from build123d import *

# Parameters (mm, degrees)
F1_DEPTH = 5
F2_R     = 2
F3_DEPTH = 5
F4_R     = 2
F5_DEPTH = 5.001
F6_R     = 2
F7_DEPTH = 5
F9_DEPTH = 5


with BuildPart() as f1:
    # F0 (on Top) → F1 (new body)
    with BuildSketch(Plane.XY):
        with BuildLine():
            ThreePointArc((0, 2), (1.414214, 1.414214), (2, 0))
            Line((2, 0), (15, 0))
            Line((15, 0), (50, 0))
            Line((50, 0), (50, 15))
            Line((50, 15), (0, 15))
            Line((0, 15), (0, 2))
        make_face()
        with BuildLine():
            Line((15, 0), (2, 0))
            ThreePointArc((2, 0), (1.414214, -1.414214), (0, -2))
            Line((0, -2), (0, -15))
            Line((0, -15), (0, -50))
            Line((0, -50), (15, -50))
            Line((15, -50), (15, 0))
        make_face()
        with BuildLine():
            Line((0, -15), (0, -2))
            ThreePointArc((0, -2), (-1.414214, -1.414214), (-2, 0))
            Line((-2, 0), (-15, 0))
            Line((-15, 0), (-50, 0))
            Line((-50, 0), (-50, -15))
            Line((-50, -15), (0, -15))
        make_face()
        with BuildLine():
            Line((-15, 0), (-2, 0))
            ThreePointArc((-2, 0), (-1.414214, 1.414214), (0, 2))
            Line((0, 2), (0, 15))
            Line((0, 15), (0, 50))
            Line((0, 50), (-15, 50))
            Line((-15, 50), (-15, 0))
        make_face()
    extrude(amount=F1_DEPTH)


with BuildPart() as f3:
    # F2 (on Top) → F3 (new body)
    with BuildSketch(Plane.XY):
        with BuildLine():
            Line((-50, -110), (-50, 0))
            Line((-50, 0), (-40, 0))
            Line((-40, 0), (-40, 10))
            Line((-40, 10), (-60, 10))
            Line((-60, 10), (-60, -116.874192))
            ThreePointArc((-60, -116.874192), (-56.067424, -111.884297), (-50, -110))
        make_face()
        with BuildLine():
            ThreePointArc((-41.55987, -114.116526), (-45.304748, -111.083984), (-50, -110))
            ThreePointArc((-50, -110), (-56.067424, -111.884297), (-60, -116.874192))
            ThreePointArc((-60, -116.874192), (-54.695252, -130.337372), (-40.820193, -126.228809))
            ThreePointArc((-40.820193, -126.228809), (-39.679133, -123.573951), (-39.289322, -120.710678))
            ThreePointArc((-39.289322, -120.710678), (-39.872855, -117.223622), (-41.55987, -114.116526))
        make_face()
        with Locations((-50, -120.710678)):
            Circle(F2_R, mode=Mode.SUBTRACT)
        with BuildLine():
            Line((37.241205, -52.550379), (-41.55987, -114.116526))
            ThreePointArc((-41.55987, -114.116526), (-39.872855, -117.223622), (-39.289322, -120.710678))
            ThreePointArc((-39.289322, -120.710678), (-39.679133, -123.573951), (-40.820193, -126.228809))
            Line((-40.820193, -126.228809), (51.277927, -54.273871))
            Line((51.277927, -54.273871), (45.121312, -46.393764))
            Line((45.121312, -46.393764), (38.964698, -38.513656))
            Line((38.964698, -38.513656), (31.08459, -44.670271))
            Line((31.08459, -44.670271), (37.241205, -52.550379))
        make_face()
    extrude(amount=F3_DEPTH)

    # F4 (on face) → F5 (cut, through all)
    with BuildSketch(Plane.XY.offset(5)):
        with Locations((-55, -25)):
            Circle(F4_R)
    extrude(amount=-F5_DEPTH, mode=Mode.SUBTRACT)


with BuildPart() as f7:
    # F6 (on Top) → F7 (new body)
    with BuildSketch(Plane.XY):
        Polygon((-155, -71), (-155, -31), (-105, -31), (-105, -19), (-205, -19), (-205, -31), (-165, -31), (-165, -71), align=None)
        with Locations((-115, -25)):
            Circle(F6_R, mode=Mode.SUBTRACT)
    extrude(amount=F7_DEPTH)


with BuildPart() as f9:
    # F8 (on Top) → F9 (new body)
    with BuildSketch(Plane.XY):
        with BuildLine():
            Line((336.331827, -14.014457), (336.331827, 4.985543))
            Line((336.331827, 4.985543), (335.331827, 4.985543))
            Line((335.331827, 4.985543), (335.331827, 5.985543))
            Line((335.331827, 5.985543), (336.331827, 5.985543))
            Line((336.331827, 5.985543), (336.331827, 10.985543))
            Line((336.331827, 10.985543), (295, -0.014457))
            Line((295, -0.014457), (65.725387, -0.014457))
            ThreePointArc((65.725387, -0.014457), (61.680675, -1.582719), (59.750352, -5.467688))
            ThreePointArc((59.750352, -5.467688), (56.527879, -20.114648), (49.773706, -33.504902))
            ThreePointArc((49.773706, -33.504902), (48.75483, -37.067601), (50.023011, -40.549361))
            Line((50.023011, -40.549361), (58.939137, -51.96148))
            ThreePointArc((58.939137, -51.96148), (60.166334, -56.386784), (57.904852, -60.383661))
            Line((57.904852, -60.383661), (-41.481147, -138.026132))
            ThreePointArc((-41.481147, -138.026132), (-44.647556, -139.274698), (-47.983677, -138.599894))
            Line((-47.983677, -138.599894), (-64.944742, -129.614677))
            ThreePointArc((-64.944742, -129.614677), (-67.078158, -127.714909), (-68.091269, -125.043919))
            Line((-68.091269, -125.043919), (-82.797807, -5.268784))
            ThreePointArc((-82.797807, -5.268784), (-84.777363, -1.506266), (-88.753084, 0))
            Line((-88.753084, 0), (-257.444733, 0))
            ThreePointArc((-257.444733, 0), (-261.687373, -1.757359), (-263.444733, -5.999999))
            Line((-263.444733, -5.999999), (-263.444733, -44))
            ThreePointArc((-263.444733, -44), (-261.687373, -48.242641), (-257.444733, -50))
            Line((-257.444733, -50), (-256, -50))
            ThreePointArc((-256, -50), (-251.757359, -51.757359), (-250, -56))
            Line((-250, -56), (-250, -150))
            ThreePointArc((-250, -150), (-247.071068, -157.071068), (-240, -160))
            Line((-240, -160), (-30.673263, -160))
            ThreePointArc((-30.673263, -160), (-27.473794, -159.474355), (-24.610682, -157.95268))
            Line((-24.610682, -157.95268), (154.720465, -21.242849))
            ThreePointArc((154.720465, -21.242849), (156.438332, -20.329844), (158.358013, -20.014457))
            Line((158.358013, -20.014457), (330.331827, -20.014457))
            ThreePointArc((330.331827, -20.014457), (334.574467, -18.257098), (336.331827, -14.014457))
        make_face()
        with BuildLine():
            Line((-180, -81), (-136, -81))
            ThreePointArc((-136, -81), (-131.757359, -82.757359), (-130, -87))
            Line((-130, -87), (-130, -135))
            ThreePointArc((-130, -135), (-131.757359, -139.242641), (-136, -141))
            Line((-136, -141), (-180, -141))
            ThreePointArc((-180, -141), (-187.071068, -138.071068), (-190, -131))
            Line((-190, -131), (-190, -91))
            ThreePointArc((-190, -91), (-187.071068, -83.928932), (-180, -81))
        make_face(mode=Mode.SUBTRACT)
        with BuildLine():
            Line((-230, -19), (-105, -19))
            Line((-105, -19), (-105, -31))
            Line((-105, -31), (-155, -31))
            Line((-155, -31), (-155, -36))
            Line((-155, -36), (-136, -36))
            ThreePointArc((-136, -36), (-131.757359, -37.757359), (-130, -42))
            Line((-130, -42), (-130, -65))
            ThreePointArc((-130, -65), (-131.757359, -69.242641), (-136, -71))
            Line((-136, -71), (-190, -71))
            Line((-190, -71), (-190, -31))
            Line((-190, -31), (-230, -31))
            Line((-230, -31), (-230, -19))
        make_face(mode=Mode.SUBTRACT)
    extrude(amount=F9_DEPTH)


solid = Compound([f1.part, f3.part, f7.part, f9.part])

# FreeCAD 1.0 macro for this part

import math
import FreeCAD as App
import Part
import Sketcher

V = App.Vector
Q = App.Units.Quantity

doc = App.newDocument("Part")
body = doc.addObject("PartDesign::Body", "Body")

sketch1 = body.newObject("Sketcher::SketchObject", "Sketch")
sketch1.AttachmentSupport = (doc.getObject("XY_Plane"), [""])
sketch1.MapMode = "FlatFace"
sketch1.addGeometry([
    Part.LineSegment(V(-15, 0, 0), V(-50, 0, 0)),
    Part.LineSegment(V(-50, 0, 0), V(-50, -15, 0)),
    Part.LineSegment(V(-50, -15, 0), V(0, -15, 0)),
    Part.LineSegment(V(0, -15, 0), V(0, -50, 0)),
    Part.LineSegment(V(0, -50, 0), V(15, -50, 0)),
    Part.LineSegment(V(15, -50, 0), V(15, 0, 0)),
    Part.LineSegment(V(15, 0, 0), V(50, 0, 0)),
    Part.LineSegment(V(50, 0, 0), V(50, 15, 0)),
    Part.LineSegment(V(50, 15, 0), V(0, 15, 0)),
    Part.LineSegment(V(0, 15, 0), V(0, 50, 0)),
    Part.LineSegment(V(0, 50, 0), V(-15, 50, 0)),
    Part.LineSegment(V(-15, 50, 0), V(-15, 0, 0)),
    Part.ArcOfCircle(Part.Circle(V(0.000001, 0.000001, 0), V(0, 0, 1), 1.999999), math.radians(-0.000043), math.radians(90.000043)),
    Part.ArcOfCircle(Part.Circle(V(0.000001, -0.000001, 0), V(0, 0, 1), 1.999999), math.radians(-90.000043), math.radians(0.000043)),
    Part.ArcOfCircle(Part.Circle(V(-0.000001, -0.000001, 0), V(0, 0, 1), 1.999999), math.radians(179.999957), math.radians(270.000043)),
    Part.ArcOfCircle(Part.Circle(V(-0.000001, 0.000001, 0), V(0, 0, 1), 1.999999), math.radians(89.999957), math.radians(180.000043)),
], False)
sketch1.addConstraint([
    Sketcher.Constraint("Coincident", 0, 2, 1, 1),
    Sketcher.Constraint("Coincident", 1, 2, 2, 1),
    Sketcher.Constraint("Coincident", 2, 2, 3, 1),
    Sketcher.Constraint("Coincident", 3, 2, 4, 1),
    Sketcher.Constraint("Coincident", 4, 2, 5, 1),
    Sketcher.Constraint("Coincident", 5, 2, 6, 1),
    Sketcher.Constraint("Coincident", 6, 2, 7, 1),
    Sketcher.Constraint("Coincident", 7, 2, 8, 1),
    Sketcher.Constraint("Coincident", 8, 2, 9, 1),
    Sketcher.Constraint("Coincident", 9, 2, 10, 1),
    Sketcher.Constraint("Coincident", 10, 2, 11, 1),
    Sketcher.Constraint("Coincident", 11, 2, 0, 1),
    Sketcher.Constraint("Tangent", 12, 1, 13, 2),
    Sketcher.Constraint("Tangent", 13, 1, 14, 2),
    Sketcher.Constraint("Tangent", 14, 1, 15, 2),
    Sketcher.Constraint("Tangent", 15, 1, 12, 2),
    Sketcher.Constraint("Horizontal", 0),
    Sketcher.Constraint("Vertical", 1),
    Sketcher.Constraint("Horizontal", 2),
    Sketcher.Constraint("Vertical", 3),
    Sketcher.Constraint("Horizontal", 4),
    Sketcher.Constraint("Vertical", 5),
    Sketcher.Constraint("Horizontal", 6),
    Sketcher.Constraint("Vertical", 7),
    Sketcher.Constraint("Horizontal", 8),
    Sketcher.Constraint("Vertical", 9),
    Sketcher.Constraint("Horizontal", 10),
    Sketcher.Constraint("Vertical", 11),
    Sketcher.Constraint("Coincident", 12, 3, -1, 1),
    Sketcher.Constraint("Equal", 12, 13),
    Sketcher.Constraint("Symmetric", 0, 2, 6, 2, -1, 1),
    Sketcher.Constraint("Symmetric", 2, 2, 8, 2, -1, 1),
    Sketcher.Constraint("Symmetric", 4, 2, 10, 2, -1, 1),
    Sketcher.Constraint("PointOnObject", 0, 2, -1),
    Sketcher.Constraint("PointOnObject", 2, 2, -2),
    Sketcher.Constraint("PointOnObject", 12, 1, -1),
    Sketcher.Constraint("PointOnObject", 13, 1, -2),
    Sketcher.Constraint("PointOnObject", 14, 1, -1),
    Sketcher.Constraint("PointOnObject", 15, 1, -2),
    Sketcher.Constraint("Equal", 10, 1),
    Sketcher.Constraint("Equal", 6, 3),
    Sketcher.Constraint("Radius", 12, 1.999999),
    Sketcher.Constraint("DistanceX", 0, 2, 0, 1, 35.0),
    Sketcher.Constraint("DistanceX", 2, 1, 2, 2, 50.0),
])
pad1 = body.newObject("PartDesign::Pad", "Pad")
pad1.Profile = sketch1
pad1.Length = 5
body2 = doc.addObject("PartDesign::Body", "Body001")

sketch2 = body2.newObject("Sketcher::SketchObject", "Sketch001")
sketch2.AttachmentSupport = (doc.getObject("XY_Plane001"), [""])
sketch2.MapMode = "FlatFace"
sketch2.addGeometry([
    Part.LineSegment(V(-50, -110, 0), V(-50, 0, 0)),
    Part.LineSegment(V(-50, 0, 0), V(-40, 0, 0)),
    Part.LineSegment(V(-40, 0, 0), V(-40, 10, 0)),
    Part.LineSegment(V(-40, 10, 0), V(-60, 10, 0)),
    Part.LineSegment(V(-60, 10, 0), V(-60, -116.874192, 0)),
    Part.ArcOfCircle(Part.Circle(V(-50, -120.710678, 0), V(0, 0, 1), 10.710678), math.radians(159.010758), math.radians(328.989241)),
    Part.LineSegment(V(-40.820193, -126.228809, 0), V(51.277927, -54.273871, 0)),
    Part.LineSegment(V(51.277927, -54.273871, 0), V(45.121312, -46.393764, 0)),
    Part.LineSegment(V(45.121312, -46.393764, 0), V(38.964698, -38.513656, 0)),
    Part.LineSegment(V(38.964698, -38.513656, 0), V(31.08459, -44.670271, 0)),
    Part.LineSegment(V(31.08459, -44.670271, 0), V(37.241205, -52.550379, 0)),
    Part.LineSegment(V(37.241205, -52.550379, 0), V(-41.55987, -114.116526, 0)),
    Part.ArcOfCircle(Part.Circle(V(-50, -120.710678, 0), V(0, 0, 1), 10.710678), math.radians(38.000002), math.radians(90.000003)),
    Part.Circle(V(-50, -120.710678, 0), V(0, 0, 1), 2),
], False)
sketch2.addConstraint([
    Sketcher.Constraint("Coincident", 0, 2, 1, 1),
    Sketcher.Constraint("Coincident", 1, 2, 2, 1),
    Sketcher.Constraint("Coincident", 2, 2, 3, 1),
    Sketcher.Constraint("Coincident", 3, 2, 4, 1),
    Sketcher.Constraint("Coincident", 4, 2, 5, 1),
    Sketcher.Constraint("Coincident", 5, 2, 6, 1),
    Sketcher.Constraint("Coincident", 6, 2, 7, 1),
    Sketcher.Constraint("Coincident", 7, 2, 8, 1),
    Sketcher.Constraint("Coincident", 8, 2, 9, 1),
    Sketcher.Constraint("Coincident", 9, 2, 10, 1),
    Sketcher.Constraint("Coincident", 10, 2, 11, 1),
    Sketcher.Constraint("Coincident", 11, 2, 12, 1),
    Sketcher.Constraint("Coincident", 12, 2, 0, 1),
    Sketcher.Constraint("Vertical", 0),
    Sketcher.Constraint("Horizontal", 1),
    Sketcher.Constraint("Vertical", 2),
    Sketcher.Constraint("Horizontal", 3),
    Sketcher.Constraint("Vertical", 4),
    Sketcher.Constraint("Coincident", 12, 3, 5, 3),
    Sketcher.Constraint("Coincident", 13, 3, 5, 3),
    Sketcher.Constraint("Equal", 5, 12),
    Sketcher.Constraint("PointOnObject", 0, 2, -1),
    Sketcher.Constraint("Perpendicular", 6, 7),
    Sketcher.Constraint("Parallel", 7, 8),
    Sketcher.Constraint("Perpendicular", 8, 9),
    Sketcher.Constraint("Perpendicular", 9, 10),
    Sketcher.Constraint("Perpendicular", 10, 11),
    Sketcher.Constraint("Vertical", 13, 3, 0, 2),
    Sketcher.Constraint("Equal", 1, 2),
    Sketcher.Constraint("Equal", 7, 8),
    Sketcher.Constraint("Equal", 8, 9),
    Sketcher.Constraint("Equal", 9, 10),
    Sketcher.Constraint("Diameter", 13, 4.0),
    Sketcher.Constraint("DistanceX", 1, 1, 1, 2, 10.0),
    Sketcher.Constraint("DistanceX", 3, 2, 3, 1, 20.0),
    Sketcher.Constraint("DistanceY", 0, 1, 0, 2, 110.0),
    Sketcher.Constraint("Angle", 6, Q("38 deg")),
    Sketcher.Constraint("Distance", 7, 10.0),
    Sketcher.Constraint("Distance", 11, 99.999999),
    Sketcher.Constraint("DistanceX", 5, 3, -1, 1, 50.0),
    Sketcher.Constraint("Radius", 5, 10.710678),
    Sketcher.Constraint("DistanceX", 1, 2, 8, 2, 78.964698),
])
pad2 = body2.newObject("PartDesign::Pad", "Pad001")
pad2.Profile = sketch2
pad2.Length = 5

sketch3 = body2.newObject("Sketcher::SketchObject", "Sketch002")
sketch3.AttachmentSupport = (doc.getObject("XY_Plane001"), [""])
sketch3.MapMode = "FlatFace"
sketch3.AttachmentOffset = App.Placement(V(0, 0, 5), App.Rotation())
sketch3.addGeometry(Part.Circle(V(-55, -25, 0), V(0, 0, 1), 2), False)
sketch3.addConstraint([
    Sketcher.Constraint("Diameter", 0, 4.0),
    Sketcher.Constraint("DistanceX", 0, 3, -1, 1, 55.0),
    Sketcher.Constraint("DistanceY", 0, 3, -1, 1, 25.0),
])
pocket1 = body2.newObject("PartDesign::Pocket", "Pocket")
pocket1.Profile = sketch3
pocket1.Type = "ThroughAll"
body3 = doc.addObject("PartDesign::Body", "Body002")

sketch4 = body3.newObject("Sketcher::SketchObject", "Sketch003")
sketch4.AttachmentSupport = (doc.getObject("XY_Plane002"), [""])
sketch4.MapMode = "FlatFace"
sketch4.addGeometry([
    Part.LineSegment(V(-155, -71, 0), V(-155, -31, 0)),
    Part.LineSegment(V(-155, -31, 0), V(-105, -31, 0)),
    Part.LineSegment(V(-105, -31, 0), V(-105, -19, 0)),
    Part.LineSegment(V(-105, -19, 0), V(-205, -19, 0)),
    Part.LineSegment(V(-205, -19, 0), V(-205, -31, 0)),
    Part.LineSegment(V(-205, -31, 0), V(-165, -31, 0)),
    Part.LineSegment(V(-165, -31, 0), V(-165, -71, 0)),
    Part.LineSegment(V(-165, -71, 0), V(-155, -71, 0)),
    Part.Circle(V(-115, -25, 0), V(0, 0, 1), 2),
], False)
sketch4.addConstraint([
    Sketcher.Constraint("Coincident", 0, 2, 1, 1),
    Sketcher.Constraint("Coincident", 1, 2, 2, 1),
    Sketcher.Constraint("Coincident", 2, 2, 3, 1),
    Sketcher.Constraint("Coincident", 3, 2, 4, 1),
    Sketcher.Constraint("Coincident", 4, 2, 5, 1),
    Sketcher.Constraint("Coincident", 5, 2, 6, 1),
    Sketcher.Constraint("Coincident", 6, 2, 7, 1),
    Sketcher.Constraint("Coincident", 7, 2, 0, 1),
    Sketcher.Constraint("Vertical", 0),
    Sketcher.Constraint("Horizontal", 1),
    Sketcher.Constraint("Vertical", 2),
    Sketcher.Constraint("Horizontal", 3),
    Sketcher.Constraint("Vertical", 4),
    Sketcher.Constraint("Horizontal", 5),
    Sketcher.Constraint("Vertical", 6),
    Sketcher.Constraint("Horizontal", 7),
    Sketcher.Constraint("Horizontal", 1, 2, 4, 2),
    Sketcher.Constraint("Equal", 5, 0),
    Sketcher.Constraint("Diameter", 8, 4.0),
    Sketcher.Constraint("DistanceX", 1, 1, 1, 2, 50.0),
    Sketcher.Constraint("DistanceX", 3, 2, 3, 1, 100.0),
    Sketcher.Constraint("DistanceX", 5, 1, 5, 2, 40.0),
    Sketcher.Constraint("DistanceY", 2, 1, 2, 2, 12.0),
    Sketcher.Constraint("DistanceX", 8, 3, -1, 1, 115.0),
    Sketcher.Constraint("DistanceY", 8, 3, -1, 1, 25.0),
    Sketcher.Constraint("DistanceX", 0, 2, -1, 1, 155.0),
    Sketcher.Constraint("DistanceY", 0, 2, -1, 1, 31.0),
])
pad3 = body3.newObject("PartDesign::Pad", "Pad002")
pad3.Profile = sketch4
pad3.Length = 5
body4 = doc.addObject("PartDesign::Body", "Body003")

sketch5 = body4.newObject("Sketcher::SketchObject", "Sketch004")
sketch5.AttachmentSupport = (doc.getObject("XY_Plane003"), [""])
sketch5.MapMode = "FlatFace"
sketch5.addGeometry([
    Part.LineSegment(V(336.331827, -14.014457, 0), V(336.331827, 4.985543, 0)),
    Part.LineSegment(V(336.331827, 4.985543, 0), V(335.331827, 4.985543, 0)),
    Part.LineSegment(V(335.331827, 4.985543, 0), V(335.331827, 5.985543, 0)),
    Part.LineSegment(V(335.331827, 5.985543, 0), V(336.331827, 5.985543, 0)),
    Part.LineSegment(V(336.331827, 5.985543, 0), V(336.331827, 10.985543, 0)),
    Part.LineSegment(V(336.331827, 10.985543, 0), V(295, -0.014457, 0)),
    Part.LineSegment(V(295, -0.014457, 0), V(65.725387, -0.014457, 0)),
    Part.ArcOfCircle(Part.Circle(V(65.725388, -6.014458, 0), V(0, 0, 1), 6.000001), math.radians(90.000006), math.radians(174.771481)),
    Part.ArcOfCircle(Part.Circle(V(-0.000014, 0.000003, 0), V(0, 0, 1), 60.000016), math.radians(-33.946251), math.radians(-5.228513)),
    Part.ArcOfCircle(Part.Circle(V(54.751077, -36.855393, 0), V(0, 0, 1), 6.000001), math.radians(146.053741), math.radians(217.999988)),
    Part.LineSegment(V(50.023011, -40.549361, 0), V(58.939137, -51.96148, 0)),
    Part.ArcOfCircle(Part.Circle(V(54.21107, -55.655448, 0), V(0, 0, 1), 6.000001), math.radians(-52.002279), math.radians(37.999984)),
    Part.LineSegment(V(57.904852, -60.383661, 0), V(-41.481147, -138.026132, 0)),
    Part.ArcOfCircle(Part.Circle(V(-45.174928, -133.297917, 0), V(0, 0, 1), 6.000003), math.radians(-117.912631), math.radians(-52.002303)),
    Part.LineSegment(V(-47.983677, -138.599894, 0), V(-64.944742, -129.614677, 0)),
    Part.ArcOfCircle(Part.Circle(V(-62.135996, -124.312706, 0), V(0, 0, 1), 5.999995), math.radians(-173.000028), math.radians(-117.912631)),
    Part.LineSegment(V(-68.091269, -125.043919, 0), V(-82.797807, -5.268784, 0)),
    Part.ArcOfCircle(Part.Circle(V(-88.753083, -5.999999, 0), V(0, 0, 1), 5.999999), math.radians(6.999995), math.radians(90.000005)),
    Part.LineSegment(V(-88.753084, 0, 0), V(-257.444733, 0, 0)),
    Part.ArcOfCircle(Part.Circle(V(-257.444732, -6.000001, 0), V(0, 0, 1), 6.000001), math.radians(90.000006), math.radians(179.999984)),
    Part.LineSegment(V(-263.444733, -5.999999, 0), V(-263.444733, -44, 0)),
    Part.ArcOfCircle(Part.Circle(V(-257.444732, -43.999999, 0), V(0, 0, 1), 6.000001), math.radians(-179.999994), math.radians(-90.000006)),
    Part.LineSegment(V(-257.444733, -50, 0), V(-256, -50, 0)),
    Part.ArcOfCircle(Part.Circle(V(-255.999999, -55.999999, 0), V(0, 0, 1), 5.999999), math.radians(-0.00001), math.radians(90.00001)),
    Part.LineSegment(V(-250, -56, 0), V(-250, -150, 0)),
    Part.ArcOfCircle(Part.Circle(V(-240.000001, -150.000001, 0), V(0, 0, 1), 9.999999), math.radians(179.999996), math.radians(270.000004)),
    Part.LineSegment(V(-240, -160, 0), V(-30.673263, -160, 0)),
    Part.ArcOfCircle(Part.Circle(V(-30.673262, -150.000001, 0), V(0, 0, 1), 9.999999), math.radians(-90.000005), math.radians(-52.680575)),
    Part.LineSegment(V(-24.610682, -157.95268, 0), V(154.720465, -21.242849, 0)),
    Part.ArcOfCircle(Part.Circle(V(158.358013, -26.014456, 0), V(0, 0, 1), 5.999999), math.radians(89.999997), math.radians(127.319428)),
    Part.LineSegment(V(158.358013, -20.014457, 0), V(330.331827, -20.014457, 0)),
    Part.ArcOfCircle(Part.Circle(V(330.331826, -14.014456, 0), V(0, 0, 1), 6.000001), math.radians(-89.999994), math.radians(-0.000006)),
    Part.ArcOfCircle(Part.Circle(V(-180.000001, -90.999999, 0), V(0, 0, 1), 9.999999), math.radians(89.999996), math.radians(180.000004)),
    Part.LineSegment(V(-180, -81, 0), V(-136, -81, 0)),
    Part.ArcOfCircle(Part.Circle(V(-135.999999, -86.999999, 0), V(0, 0, 1), 5.999999), math.radians(-0.00001), math.radians(90.00001)),
    Part.LineSegment(V(-130, -87, 0), V(-130, -135, 0)),
    Part.ArcOfCircle(Part.Circle(V(-135.999999, -135.000001, 0), V(0, 0, 1), 5.999999), math.radians(-90.00001), math.radians(0.00001)),
    Part.LineSegment(V(-136, -141, 0), V(-180, -141, 0)),
    Part.ArcOfCircle(Part.Circle(V(-180.000001, -131.000001, 0), V(0, 0, 1), 9.999999), math.radians(179.999996), math.radians(270.000004)),
    Part.LineSegment(V(-190, -131, 0), V(-190, -91, 0)),
    Part.LineSegment(V(-230, -31, 0), V(-230, -19, 0)),
    Part.LineSegment(V(-230, -19, 0), V(-105, -19, 0)),
    Part.LineSegment(V(-105, -19, 0), V(-105, -31, 0)),
    Part.LineSegment(V(-105, -31, 0), V(-155, -31, 0)),
    Part.LineSegment(V(-155, -31, 0), V(-155, -36, 0)),
    Part.LineSegment(V(-155, -36, 0), V(-136, -36, 0)),
    Part.ArcOfCircle(Part.Circle(V(-135.999999, -41.999999, 0), V(0, 0, 1), 5.999999), math.radians(-0.00001), math.radians(90.00001)),
    Part.LineSegment(V(-130, -42, 0), V(-130, -65, 0)),
    Part.ArcOfCircle(Part.Circle(V(-135.999999, -65.000001, 0), V(0, 0, 1), 5.999999), math.radians(-90.00001), math.radians(0.00001)),
    Part.LineSegment(V(-136, -71, 0), V(-190, -71, 0)),
    Part.LineSegment(V(-190, -71, 0), V(-190, -31, 0)),
    Part.LineSegment(V(-190, -31, 0), V(-230, -31, 0)),
], False)
sketch5.addConstraint([
    Sketcher.Constraint("Coincident", 0, 2, 1, 1),
    Sketcher.Constraint("Coincident", 1, 2, 2, 1),
    Sketcher.Constraint("Coincident", 2, 2, 3, 1),
    Sketcher.Constraint("Coincident", 3, 2, 4, 1),
    Sketcher.Constraint("Coincident", 4, 2, 5, 1),
    Sketcher.Constraint("Coincident", 5, 2, 6, 1),
    Sketcher.Constraint("Coincident", 6, 2, 7, 1),
    Sketcher.Constraint("Coincident", 7, 2, 8, 2),
    Sketcher.Constraint("Coincident", 8, 1, 9, 1),
    Sketcher.Constraint("Coincident", 9, 2, 10, 1),
    Sketcher.Constraint("Coincident", 10, 2, 11, 2),
    Sketcher.Constraint("Coincident", 11, 1, 12, 1),
    Sketcher.Constraint("Coincident", 12, 2, 13, 2),
    Sketcher.Constraint("Coincident", 13, 1, 14, 1),
    Sketcher.Constraint("Coincident", 14, 2, 15, 2),
    Sketcher.Constraint("Coincident", 15, 1, 16, 1),
    Sketcher.Constraint("Coincident", 16, 2, 17, 1),
    Sketcher.Constraint("Coincident", 17, 2, 18, 1),
    Sketcher.Constraint("Coincident", 18, 2, 19, 1),
    Sketcher.Constraint("Coincident", 19, 2, 20, 1),
    Sketcher.Constraint("Coincident", 20, 2, 21, 1),
    Sketcher.Constraint("Coincident", 21, 2, 22, 1),
    Sketcher.Constraint("Coincident", 22, 2, 23, 2),
    Sketcher.Constraint("Coincident", 23, 1, 24, 1),
    Sketcher.Constraint("Coincident", 24, 2, 25, 1),
    Sketcher.Constraint("Coincident", 25, 2, 26, 1),
    Sketcher.Constraint("Coincident", 26, 2, 27, 1),
    Sketcher.Constraint("Coincident", 27, 2, 28, 1),
    Sketcher.Constraint("Coincident", 28, 2, 29, 2),
    Sketcher.Constraint("Coincident", 29, 1, 30, 1),
    Sketcher.Constraint("Coincident", 30, 2, 31, 1),
    Sketcher.Constraint("Coincident", 31, 2, 0, 1),
    Sketcher.Constraint("Coincident", 32, 1, 33, 1),
    Sketcher.Constraint("Coincident", 33, 2, 34, 2),
    Sketcher.Constraint("Coincident", 34, 1, 35, 1),
    Sketcher.Constraint("Coincident", 35, 2, 36, 2),
    Sketcher.Constraint("Coincident", 36, 1, 37, 1),
    Sketcher.Constraint("Coincident", 37, 2, 38, 2),
    Sketcher.Constraint("Coincident", 38, 1, 39, 1),
    Sketcher.Constraint("Coincident", 39, 2, 32, 2),
    Sketcher.Constraint("Coincident", 40, 2, 41, 1),
    Sketcher.Constraint("Coincident", 41, 2, 42, 1),
    Sketcher.Constraint("Coincident", 42, 2, 43, 1),
    Sketcher.Constraint("Coincident", 43, 2, 44, 1),
    Sketcher.Constraint("Coincident", 44, 2, 45, 1),
    Sketcher.Constraint("Coincident", 45, 2, 46, 2),
    Sketcher.Constraint("Coincident", 46, 1, 47, 1),
    Sketcher.Constraint("Coincident", 47, 2, 48, 2),
    Sketcher.Constraint("Coincident", 48, 1, 49, 1),
    Sketcher.Constraint("Coincident", 49, 2, 50, 1),
    Sketcher.Constraint("Coincident", 50, 2, 51, 1),
    Sketcher.Constraint("Coincident", 51, 2, 40, 1),
    Sketcher.Constraint("Vertical", 0),
    Sketcher.Constraint("Horizontal", 1),
    Sketcher.Constraint("Vertical", 2),
    Sketcher.Constraint("Horizontal", 3),
    Sketcher.Constraint("Vertical", 4),
    Sketcher.Constraint("Horizontal", 6),
    Sketcher.Constraint("Horizontal", 18),
    Sketcher.Constraint("Vertical", 20),
    Sketcher.Constraint("Horizontal", 22),
    Sketcher.Constraint("Vertical", 24),
    Sketcher.Constraint("Horizontal", 26),
    Sketcher.Constraint("Horizontal", 30),
    Sketcher.Constraint("Horizontal", 33),
    Sketcher.Constraint("Vertical", 35),
    Sketcher.Constraint("Horizontal", 37),
    Sketcher.Constraint("Vertical", 39),
    Sketcher.Constraint("Vertical", 40),
    Sketcher.Constraint("Horizontal", 41),
    Sketcher.Constraint("Vertical", 42),
    Sketcher.Constraint("Horizontal", 43),
    Sketcher.Constraint("Vertical", 44),
    Sketcher.Constraint("Horizontal", 45),
    Sketcher.Constraint("Vertical", 47),
    Sketcher.Constraint("Horizontal", 49),
    Sketcher.Constraint("Vertical", 50),
    Sketcher.Constraint("Horizontal", 51),
    Sketcher.Constraint("PointOnObject", 17, 2, -1),
    Sketcher.Constraint("Radius", 7, 6.000001),
    Sketcher.Constraint("Radius", 9, 6.000001),
    Sketcher.Constraint("Radius", 11, 6.000001),
    Sketcher.Constraint("Radius", 17, 5.999999),
    Sketcher.Constraint("Radius", 19, 6.000001),
    Sketcher.Constraint("Radius", 21, 6.000001),
    Sketcher.Constraint("Radius", 23, 5.999999),
    Sketcher.Constraint("Radius", 25, 9.999999),
    Sketcher.Constraint("Radius", 27, 9.999999),
    Sketcher.Constraint("Radius", 29, 5.999999),
    Sketcher.Constraint("Radius", 31, 6.000001),
    Sketcher.Constraint("Radius", 32, 9.999999),
    Sketcher.Constraint("Radius", 34, 5.999999),
    Sketcher.Constraint("Radius", 36, 5.999999),
    Sketcher.Constraint("Radius", 38, 9.999999),
    Sketcher.Constraint("Radius", 46, 5.999999),
    Sketcher.Constraint("Radius", 48, 5.999999),
    Sketcher.Constraint("DistanceX", 1, 2, 1, 1, 1.0),
    Sketcher.Constraint("DistanceX", 3, 1, 3, 2, 1.0),
    Sketcher.Constraint("DistanceX", 33, 1, 33, 2, 44.0),
    Sketcher.Constraint("DistanceX", 37, 2, 37, 1, 44.0),
    Sketcher.Constraint("DistanceX", 41, 1, 41, 2, 125.0),
    Sketcher.Constraint("DistanceX", 43, 2, 43, 1, 50.0),
    Sketcher.Constraint("DistanceX", 45, 1, 45, 2, 19.0),
    Sketcher.Constraint("DistanceX", 49, 2, 49, 1, 54.0),
    Sketcher.Constraint("DistanceX", 51, 2, 51, 1, 40.0),
    Sketcher.Constraint("DistanceY", 0, 1, 0, 2, 19.0),
    Sketcher.Constraint("DistanceY", 2, 1, 2, 2, 1.0),
    Sketcher.Constraint("DistanceY", 4, 1, 4, 2, 5.0),
    Sketcher.Constraint("DistanceY", 20, 2, 20, 1, 38.000001),
    Sketcher.Constraint("DistanceY", 24, 2, 24, 1, 94.0),
    Sketcher.Constraint("DistanceY", 35, 2, 35, 1, 48.0),
    Sketcher.Constraint("DistanceY", 39, 1, 39, 2, 40.0),
    Sketcher.Constraint("DistanceY", 40, 1, 40, 2, 12.0),
    Sketcher.Constraint("DistanceY", 42, 2, 42, 1, 12.0),
    Sketcher.Constraint("DistanceY", 44, 2, 44, 1, 5.0),
    Sketcher.Constraint("DistanceY", 47, 2, 47, 1, 23.0),
    Sketcher.Constraint("DistanceY", 50, 1, 50, 2, 40.0),
    Sketcher.Constraint("DistanceY", 21, 3, -1, 1, 43.999999),
    Sketcher.Constraint("DistanceX", 23, 3, -1, 1, 255.999999),
    Sketcher.Constraint("DistanceY", 25, 3, -1, 1, 150.000001),
    Sketcher.Constraint("DistanceX", 32, 3, -1, 1, 180.000001),
    Sketcher.Constraint("DistanceY", 32, 3, -1, 1, 90.999999),
    Sketcher.Constraint("DistanceX", 34, 3, -1, 1, 135.999999),
    Sketcher.Constraint("DistanceY", 36, 3, -1, 1, 135.000001),
    Sketcher.Constraint("DistanceX", 46, 3, -1, 1, 135.999999),
    Sketcher.Constraint("DistanceY", 46, 3, -1, 1, 41.999999),
    Sketcher.Constraint("DistanceX", -1, 1, 5, 2, 295.0),
    Sketcher.Constraint("DistanceY", 19, 2, -1, 1, 5.999999),
    Sketcher.Constraint("DistanceX", 22, 2, -1, 1, 256.0),
    Sketcher.Constraint("DistanceY", 23, 1, -1, 1, 56.0),
    Sketcher.Constraint("DistanceX", 25, 2, -1, 1, 240.0),
    Sketcher.Constraint("DistanceX", 32, 1, -1, 1, 180.0),
    Sketcher.Constraint("DistanceY", 34, 1, -1, 1, 87.0),
    Sketcher.Constraint("DistanceX", 36, 1, -1, 1, 136.0),
    Sketcher.Constraint("DistanceY", 38, 1, -1, 1, 131.0),
    Sketcher.Constraint("DistanceX", 40, 2, -1, 1, 230.0),
    Sketcher.Constraint("DistanceY", 46, 1, -1, 1, 42.0),
    Sketcher.Constraint("Radius", 8, 60.000016),
    Sketcher.Constraint("Radius", 13, 6.000003),
    Sketcher.Constraint("Radius", 15, 5.999995),
    Sketcher.Constraint("DistanceX", 18, 2, 18, 1, 168.691649),
    Sketcher.Constraint("DistanceY", 8, 1, -1, 1, 33.504902),
    Sketcher.Constraint("Distance", 5, 42.77055),
    Sketcher.Constraint("DistanceX", 6, 2, 6, 1, 229.274613),
    Sketcher.Constraint("DistanceX", 22, 1, 22, 2, 1.444733),
    Sketcher.Constraint("DistanceX", 26, 1, 26, 2, 209.326737),
    Sketcher.Constraint("DistanceX", 30, 1, 30, 2, 171.973814),
    Sketcher.Constraint("DistanceX", -1, 1, 11, 3, 54.21107),
    Sketcher.Constraint("DistanceY", 11, 3, -1, 1, 55.655448),
    Sketcher.Constraint("DistanceY", 7, 2, -1, 1, 5.467688),
    Sketcher.Constraint("DistanceX", -1, 1, 9, 2, 50.023011),
    Sketcher.Constraint("DistanceY", 9, 2, -1, 1, 40.549361),
    Sketcher.Constraint("DistanceY", 10, 2, -1, 1, 51.96148),
    Sketcher.Constraint("DistanceY", 11, 1, -1, 1, 60.383661),
    Sketcher.Constraint("DistanceY", 12, 2, -1, 1, 138.026132),
    Sketcher.Constraint("DistanceX", 15, 1, -1, 1, 68.091269),
    Sketcher.Constraint("DistanceY", 15, 1, -1, 1, 125.043919),
    Sketcher.Constraint("DistanceY", 27, 2, -1, 1, 157.95268),
    Sketcher.Constraint("DistanceY", 28, 2, -1, 1, 21.242849),
    Sketcher.Constraint("Distance", 12, 126.118714),
    Sketcher.Constraint("Distance", 14, 19.194058),
    Sketcher.Constraint("Distance", 16, 120.674625),
    Sketcher.Constraint("Distance", 28, 225.497756),
    Sketcher.Constraint("DistanceX", -1, 1, 7, 3, 65.725388),
    Sketcher.Constraint("DistanceY", 7, 3, -1, 1, 6.014458),
    Sketcher.Constraint("DistanceX", -1, 1, 9, 3, 54.751077),
    Sketcher.Constraint("DistanceX", 13, 3, -1, 1, 45.174928),
    Sketcher.Constraint("DistanceX", 15, 3, -1, 1, 62.135996),
    Sketcher.Constraint("DistanceX", 17, 3, -1, 1, 88.753083),
    Sketcher.Constraint("DistanceX", 19, 3, -1, 1, 257.444732),
    Sketcher.Constraint("DistanceX", 27, 3, -1, 1, 30.673262),
    Sketcher.Constraint("DistanceX", -1, 1, 29, 3, 158.358013),
    Sketcher.Constraint("DistanceX", -1, 1, 31, 3, 330.331826),
    Sketcher.Constraint("DistanceX", 13, 1, -1, 1, 47.983677),
    Sketcher.Constraint("DistanceX", 17, 2, -1, 1, 88.753084),
    Sketcher.Constraint("DistanceX", -1, 1, 29, 1, 158.358013),
])
pad4 = body4.newObject("PartDesign::Pad", "Pad003")
pad4.Profile = sketch5
pad4.Length = 5

doc.recompute()
